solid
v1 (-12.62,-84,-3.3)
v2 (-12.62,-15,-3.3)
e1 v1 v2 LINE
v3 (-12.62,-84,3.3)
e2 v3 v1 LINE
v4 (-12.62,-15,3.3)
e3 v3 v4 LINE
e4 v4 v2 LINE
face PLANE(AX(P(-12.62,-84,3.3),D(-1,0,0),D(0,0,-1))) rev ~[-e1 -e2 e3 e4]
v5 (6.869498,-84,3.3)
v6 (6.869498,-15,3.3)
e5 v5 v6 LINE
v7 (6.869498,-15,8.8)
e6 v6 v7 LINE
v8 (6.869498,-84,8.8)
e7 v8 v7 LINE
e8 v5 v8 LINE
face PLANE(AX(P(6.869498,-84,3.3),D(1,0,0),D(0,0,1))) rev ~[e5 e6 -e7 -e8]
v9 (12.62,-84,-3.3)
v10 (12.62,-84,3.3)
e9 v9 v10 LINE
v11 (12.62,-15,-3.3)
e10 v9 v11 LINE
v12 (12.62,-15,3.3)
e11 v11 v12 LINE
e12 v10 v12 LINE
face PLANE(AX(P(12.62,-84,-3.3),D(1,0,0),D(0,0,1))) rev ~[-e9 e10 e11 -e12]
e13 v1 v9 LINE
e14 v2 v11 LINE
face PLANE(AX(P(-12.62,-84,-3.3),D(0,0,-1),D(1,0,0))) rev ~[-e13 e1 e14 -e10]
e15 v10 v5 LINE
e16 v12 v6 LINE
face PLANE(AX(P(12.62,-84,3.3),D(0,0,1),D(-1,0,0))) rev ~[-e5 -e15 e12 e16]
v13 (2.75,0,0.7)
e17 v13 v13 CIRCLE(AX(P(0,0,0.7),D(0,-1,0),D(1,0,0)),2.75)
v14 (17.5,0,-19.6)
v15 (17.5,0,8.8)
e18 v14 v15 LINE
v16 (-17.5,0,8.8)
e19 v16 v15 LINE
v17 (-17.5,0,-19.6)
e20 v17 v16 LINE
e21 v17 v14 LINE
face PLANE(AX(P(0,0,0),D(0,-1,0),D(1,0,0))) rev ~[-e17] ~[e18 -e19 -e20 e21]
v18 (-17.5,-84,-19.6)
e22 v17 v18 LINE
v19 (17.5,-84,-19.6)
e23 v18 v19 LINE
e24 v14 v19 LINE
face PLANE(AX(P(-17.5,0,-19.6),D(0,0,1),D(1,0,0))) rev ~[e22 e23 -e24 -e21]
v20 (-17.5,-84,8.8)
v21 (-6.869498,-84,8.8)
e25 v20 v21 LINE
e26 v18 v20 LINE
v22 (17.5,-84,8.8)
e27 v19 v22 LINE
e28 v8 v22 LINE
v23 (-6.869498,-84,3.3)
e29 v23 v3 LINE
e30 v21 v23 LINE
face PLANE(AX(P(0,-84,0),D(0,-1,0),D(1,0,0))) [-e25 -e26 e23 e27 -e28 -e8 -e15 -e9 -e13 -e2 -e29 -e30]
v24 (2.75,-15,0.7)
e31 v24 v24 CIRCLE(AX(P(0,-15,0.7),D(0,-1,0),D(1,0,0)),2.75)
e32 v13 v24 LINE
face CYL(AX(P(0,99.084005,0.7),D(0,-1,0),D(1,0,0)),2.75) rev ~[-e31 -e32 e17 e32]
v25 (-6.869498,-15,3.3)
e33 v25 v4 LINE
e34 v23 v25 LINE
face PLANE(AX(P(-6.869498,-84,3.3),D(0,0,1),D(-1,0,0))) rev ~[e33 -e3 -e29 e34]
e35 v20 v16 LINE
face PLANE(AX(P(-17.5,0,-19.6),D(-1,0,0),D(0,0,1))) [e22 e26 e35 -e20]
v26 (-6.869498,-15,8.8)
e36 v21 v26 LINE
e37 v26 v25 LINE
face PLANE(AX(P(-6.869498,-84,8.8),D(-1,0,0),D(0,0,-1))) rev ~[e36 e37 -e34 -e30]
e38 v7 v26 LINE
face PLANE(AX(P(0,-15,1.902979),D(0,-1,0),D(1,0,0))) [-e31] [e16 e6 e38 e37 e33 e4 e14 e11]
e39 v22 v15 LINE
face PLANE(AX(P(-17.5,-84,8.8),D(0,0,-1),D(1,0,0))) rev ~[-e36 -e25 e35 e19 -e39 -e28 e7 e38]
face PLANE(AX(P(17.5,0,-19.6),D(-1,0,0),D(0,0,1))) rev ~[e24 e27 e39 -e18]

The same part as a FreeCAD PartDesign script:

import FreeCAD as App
import Part
import Sketcher

V = App.Vector


def add_polygon(sketch, points):
    """Adds a closed chain of lines whose ends are joined by coincident constraints."""
    first, n = sketch.GeometryCount, len(points)
    for a, b in zip(points, points[1:] + points[:1]):
        sketch.addGeometry(Part.LineSegment(App.Vector(*a, 0), App.Vector(*b, 0)), False)
    for i in range(n):
        sketch.addConstraint(Sketcher.Constraint("Coincident", first + i, 2, first + (i + 1) % n, 1))

doc = App.newDocument("Part")
body = doc.addObject("PartDesign::Body", "Body")

sketch1 = doc.addObject("Sketcher::SketchObject", "Sketch")
body.addObject(sketch1)
sketch1.AttachmentSupport = (doc.XZ_Plane, [""])
sketch1.MapMode = "FlatFace"
add_polygon(sketch1, [(-18, 20), (-18, -20), (18, -20), (18, 20)])
sketch1.addConstraint(Sketcher.Constraint("Vertical", 0))
sketch1.addConstraint(Sketcher.Constraint("Horizontal", 1))
sketch1.addConstraint(Sketcher.Constraint("Vertical", 2))
sketch1.addConstraint(Sketcher.Constraint("Horizontal", 3))
sketch1.addConstraint(Sketcher.Constraint("Symmetric", 0, 2, 2, 2, -1, 1))
sketch1.addConstraint(Sketcher.Constraint("DistanceX", 1, 1, 1, 2, 35.0))
sketch1.addConstraint(Sketcher.Constraint("DistanceY", 0, 2, 0, 1, 39.2))
pad1 = doc.addObject("PartDesign::Pad", "Pad")
body.addObject(pad1)
pad1.Profile = sketch1
pad1.Length = 84

sketch2 = doc.addObject("Sketcher::SketchObject", "Sketch001")
body.addObject(sketch2)
sketch2.AttachmentSupport = (doc.XZ_Plane, [""])
sketch2.MapMode = "FlatFace"
sketch2.AttachmentOffset = App.Placement(V(0, 0, 84), App.Rotation())
add_polygon(sketch2, [(13, -3), (13, 3), (7, 3), (7, 9), (-7, 9), (-7, 3), (-13, 3), (-13, -3)])
sketch2.addConstraint(Sketcher.Constraint("Vertical", 0))
sketch2.addConstraint(Sketcher.Constraint("Horizontal", 1))
sketch2.addConstraint(Sketcher.Constraint("Vertical", 2))
sketch2.addConstraint(Sketcher.Constraint("Horizontal", 3))
sketch2.addConstraint(Sketcher.Constraint("Vertical", 4))
sketch2.addConstraint(Sketcher.Constraint("Horizontal", 5))
sketch2.addConstraint(Sketcher.Constraint("Vertical", 6))
sketch2.addConstraint(Sketcher.Constraint("Horizontal", 7))
sketch2.addConstraint(Sketcher.Constraint("Symmetric", 0, 2, 6, 2, -1, 1))
sketch2.addConstraint(Sketcher.Constraint("Symmetric", 1, 2, 4, 2, -2))
sketch2.addConstraint(Sketcher.Constraint("DistanceY", 0, 1, 0, 2, 6.6))
sketch2.addConstraint(Sketcher.Constraint("DistanceY", 2, 1, 2, 2, 5.5))
sketch2.addConstraint(Sketcher.Constraint("DistanceX", 7, 1, 7, 2, 25.24))
sketch2.addConstraint(Sketcher.Constraint("DistanceX", 1, 2, 1, 1, 5.750502))
pocket1 = doc.addObject("PartDesign::Pocket", "Pocket")
body.addObject(pocket1)
pocket1.Profile = sketch2
pocket1.Length = 69

sketch3 = doc.addObject("Sketcher::SketchObject", "Sketch002")
body.addObject(sketch3)
sketch3.AttachmentSupport = (doc.XZ_Plane, [""])
sketch3.MapMode = "FlatFace"
sketch3.addGeometry(Part.Circle(V(0, 0.7, 0), V(0, 0, 1), 2.8), False)
sketch3.addConstraint(Sketcher.Constraint("PointOnObject", 0, 3, -2))
sketch3.addConstraint(Sketcher.Constraint("Diameter", 0, 5.5))
sketch3.addConstraint(Sketcher.Constraint("DistanceY", -1, 1, 0, 3, 0.7))
doc.recompute()
hole = doc.addObject("PartDesign::Hole", "Hole")
body.addObject(hole)
hole.Profile = sketch3
hole.ThreadType = "None"
hole.Diameter = 5.5
hole.DepthType = "ThroughAll"
hole.Reversed = True

sketch4 = doc.addObject("Sketcher::SketchObject", "Sketch003")
body.addObject(sketch4)
sketch4.AttachmentSupport = (doc.XZ_Plane, [""])
sketch4.MapMode = "FlatFace"
sketch4.AttachmentOffset = App.Placement(V(0, 0, 84), App.Rotation())
add_polygon(sketch4, [(-18, 20), (-18, 9), (18, 9), (18, 20)])
sketch4.addConstraint(Sketcher.Constraint("Vertical", 0))
sketch4.addConstraint(Sketcher.Constraint("Horizontal", 1))
sketch4.addConstraint(Sketcher.Constraint("Vertical", 2))
sketch4.addConstraint(Sketcher.Constraint("Horizontal", 3))
sketch4.addConstraint(Sketcher.Constraint("DistanceX", 1, 1, 1, 2, 35.0))
sketch4.addConstraint(Sketcher.Constraint("DistanceY", 0, 2, 0, 1, 10.8))
sketch4.addConstraint(Sketcher.Constraint("DistanceX", 0, 2, -1, 1, 17.5))
sketch4.addConstraint(Sketcher.Constraint("DistanceY", -1, 1, 0, 2, 8.8))
pocket2 = doc.addObject("PartDesign::Pocket", "Pocket001")
body.addObject(pocket2)
pocket2.Profile = sketch4
pocket2.Type = "ThroughAll"

doc.recompute()
